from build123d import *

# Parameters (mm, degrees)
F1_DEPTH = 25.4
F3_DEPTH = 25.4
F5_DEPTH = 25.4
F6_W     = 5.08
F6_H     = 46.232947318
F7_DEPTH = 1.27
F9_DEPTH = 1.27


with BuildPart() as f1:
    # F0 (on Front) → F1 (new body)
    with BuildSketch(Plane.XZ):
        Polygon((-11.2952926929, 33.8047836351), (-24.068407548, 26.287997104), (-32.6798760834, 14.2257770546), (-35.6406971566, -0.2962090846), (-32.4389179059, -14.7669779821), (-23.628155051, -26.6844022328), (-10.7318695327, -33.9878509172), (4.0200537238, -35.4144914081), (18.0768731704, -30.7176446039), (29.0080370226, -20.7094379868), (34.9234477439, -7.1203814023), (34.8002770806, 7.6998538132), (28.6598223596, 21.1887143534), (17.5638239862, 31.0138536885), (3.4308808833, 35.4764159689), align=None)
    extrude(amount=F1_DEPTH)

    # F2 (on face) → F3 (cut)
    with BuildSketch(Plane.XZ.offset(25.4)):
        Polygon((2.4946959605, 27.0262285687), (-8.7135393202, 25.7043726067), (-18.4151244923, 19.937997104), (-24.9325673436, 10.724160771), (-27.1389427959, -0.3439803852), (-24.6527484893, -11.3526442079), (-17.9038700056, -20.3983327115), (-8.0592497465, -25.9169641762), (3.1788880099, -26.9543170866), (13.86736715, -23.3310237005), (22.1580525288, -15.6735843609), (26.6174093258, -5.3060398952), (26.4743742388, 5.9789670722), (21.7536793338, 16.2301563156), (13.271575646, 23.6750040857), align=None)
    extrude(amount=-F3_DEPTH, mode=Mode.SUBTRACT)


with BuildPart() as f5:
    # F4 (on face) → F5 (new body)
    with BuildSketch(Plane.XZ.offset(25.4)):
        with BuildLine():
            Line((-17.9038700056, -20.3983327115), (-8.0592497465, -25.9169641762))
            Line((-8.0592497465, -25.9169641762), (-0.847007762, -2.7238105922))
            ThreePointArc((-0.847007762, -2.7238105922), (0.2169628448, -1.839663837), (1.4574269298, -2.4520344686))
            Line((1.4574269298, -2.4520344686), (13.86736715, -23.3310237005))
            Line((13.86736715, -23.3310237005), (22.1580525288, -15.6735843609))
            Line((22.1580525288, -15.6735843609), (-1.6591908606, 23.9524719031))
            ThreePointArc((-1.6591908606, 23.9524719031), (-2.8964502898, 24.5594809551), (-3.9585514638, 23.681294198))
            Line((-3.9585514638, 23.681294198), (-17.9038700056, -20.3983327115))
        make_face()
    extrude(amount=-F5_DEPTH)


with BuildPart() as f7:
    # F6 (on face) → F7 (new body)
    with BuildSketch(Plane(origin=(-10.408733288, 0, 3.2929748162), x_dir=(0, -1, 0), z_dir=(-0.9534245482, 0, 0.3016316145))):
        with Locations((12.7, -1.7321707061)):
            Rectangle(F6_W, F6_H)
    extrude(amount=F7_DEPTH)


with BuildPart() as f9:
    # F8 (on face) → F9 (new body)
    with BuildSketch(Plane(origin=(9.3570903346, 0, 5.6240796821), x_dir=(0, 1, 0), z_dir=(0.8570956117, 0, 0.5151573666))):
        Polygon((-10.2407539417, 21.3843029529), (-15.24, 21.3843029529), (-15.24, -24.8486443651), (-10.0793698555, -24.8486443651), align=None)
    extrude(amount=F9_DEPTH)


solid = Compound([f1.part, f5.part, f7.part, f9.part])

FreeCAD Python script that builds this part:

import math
import FreeCAD as App
import Part
import Sketcher
Q = App.Units.Quantity

doc = App.newDocument("Part")
params = doc.addObject("Spreadsheet::Sheet", "Params")
for row, (alias, value) in enumerate([
    ("pad1_length", "1 in"),
    ("pocket1_length", "1 in"),
    ("sketch3_radius", "0.05 in"),
    ("sketch3_radius2", "0.05 in"),
    ("pad2_length", "1 in"),
    ("sketch4_width", "0.2 in"),
    ("pad3_length", "0.05 in"),
    ("pad4_length", "0.05 in"),
], start=1):
    params.set(f"A{row}", alias)
    params.set(f"B{row}", "=" + value)
    params.setAlias(f"B{row}", alias)

body = doc.addObject("PartDesign::Body", "Body")

sketch1 = body.newObject("Sketcher::SketchObject", "Sketch")
sketch1.AttachmentSupport = (doc.getObject("XZ_Plane"), [""])
sketch1.MapMode = "FlatFace"
sketch1.addGeometry([
    Part.LineSegment(App.Vector(-11.295293, 33.804784, 0), App.Vector(-24.068408, 26.287997, 0)),
    Part.LineSegment(App.Vector(-24.068408, 26.287997, 0), App.Vector(-32.679876, 14.225777, 0)),
    Part.LineSegment(App.Vector(-32.679876, 14.225777, 0), App.Vector(-35.640697, -0.296209, 0)),
    Part.LineSegment(App.Vector(-35.640697, -0.296209, 0), App.Vector(-32.438918, -14.766978, 0)),
    Part.LineSegment(App.Vector(-32.438918, -14.766978, 0), App.Vector(-23.628155, -26.684402, 0)),
    Part.LineSegment(App.Vector(-23.628155, -26.684402, 0), App.Vector(-10.73187, -33.987851, 0)),
    Part.LineSegment(App.Vector(-10.73187, -33.987851, 0), App.Vector(4.020054, -35.414491, 0)),
    Part.LineSegment(App.Vector(4.020054, -35.414491, 0), App.Vector(18.076873, -30.717645, 0)),
    Part.LineSegment(App.Vector(18.076873, -30.717645, 0), App.Vector(29.008037, -20.709438, 0)),
    Part.LineSegment(App.Vector(29.008037, -20.709438, 0), App.Vector(34.923448, -7.120381, 0)),
    Part.LineSegment(App.Vector(34.923448, -7.120381, 0), App.Vector(34.800277, 7.699854, 0)),
    Part.LineSegment(App.Vector(34.800277, 7.699854, 0), App.Vector(28.659822, 21.188714, 0)),
    Part.LineSegment(App.Vector(28.659822, 21.188714, 0), App.Vector(17.563824, 31.013854, 0)),
    Part.LineSegment(App.Vector(17.563824, 31.013854, 0), App.Vector(3.430881, 35.476416, 0)),
    Part.LineSegment(App.Vector(3.430881, 35.476416, 0), App.Vector(-11.295293, 33.804784, 0)),
], False)
sketch1.addConstraint([
    Sketcher.Constraint("Coincident", 0, 2, 1, 1),
    Sketcher.Constraint("Coincident", 1, 2, 2, 1),
    Sketcher.Constraint("Coincident", 2, 2, 3, 1),
    Sketcher.Constraint("Coincident", 3, 2, 4, 1),
    Sketcher.Constraint("Coincident", 4, 2, 5, 1),
    Sketcher.Constraint("Coincident", 5, 2, 6, 1),
    Sketcher.Constraint("Coincident", 6, 2, 7, 1),
    Sketcher.Constraint("Coincident", 7, 2, 8, 1),
    Sketcher.Constraint("Coincident", 8, 2, 9, 1),
    Sketcher.Constraint("Coincident", 9, 2, 10, 1),
    Sketcher.Constraint("Coincident", 10, 2, 11, 1),
    Sketcher.Constraint("Coincident", 11, 2, 12, 1),
    Sketcher.Constraint("Coincident", 12, 2, 13, 1),
    Sketcher.Constraint("Coincident", 13, 2, 14, 1),
    Sketcher.Constraint("Coincident", 14, 2, 0, 1),
    Sketcher.Constraint("Equal", 0, 1),
    Sketcher.Constraint("Equal", 1, 2),
    Sketcher.Constraint("Equal", 2, 3),
    Sketcher.Constraint("Equal", 3, 4),
    Sketcher.Constraint("Equal", 4, 5),
    Sketcher.Constraint("Equal", 5, 6),
    Sketcher.Constraint("Equal", 6, 7),
    Sketcher.Constraint("Equal", 7, 8),
    Sketcher.Constraint("Equal", 8, 9),
    Sketcher.Constraint("Equal", 9, 10),
    Sketcher.Constraint("Equal", 10, 11),
    Sketcher.Constraint("Equal", 11, 12),
    Sketcher.Constraint("Equal", 12, 13),
    Sketcher.Constraint("Equal", 13, 14),
    Sketcher.Constraint("DistanceY", 7, 2, 10, 2, Q("1.5124999 in")),
    Sketcher.Constraint("DistanceY", 4, 2, 0, 2, 52.972399),
    Sketcher.Constraint("DistanceX", 12, 2, 11, 2, 11.095998),
    Sketcher.Constraint("DistanceY", 10, 2, 12, 2, 23.314),
    Sketcher.Constraint("DistanceX", 1, 2, 12, 2, 50.2437),
    Sketcher.Constraint("DistanceY", 11, 2, 13, 2, 14.287702),
    Sketcher.Constraint("DistanceY", 2, 2, -1, 1, 0.296209),
    Sketcher.Constraint("DistanceX", 5, 2, -1, 1, 10.73187),
    Sketcher.Constraint("DistanceY", 5, 2, -1, 1, 33.987851),
    Sketcher.Constraint("DistanceY", 6, 2, -1, 1, 35.414491),
    Sketcher.Constraint("DistanceY", 9, 2, -1, 1, 7.120381),
    Sketcher.Constraint("DistanceX", -1, 1, 13, 2, 3.430881),
    Sketcher.Constraint("DistanceX", 1, 2, 0, 2, 8.611469),
    Sketcher.Constraint("DistanceY", 1, 2, 0, 2, 12.06222),
    Sketcher.Constraint("DistanceX", 2, 2, 1, 2, 2.960821),
    Sketcher.Constraint("DistanceY", 8, 2, 3, 2, 5.94246),
])
pad1 = body.newObject("PartDesign::Pad", "Pad")
pad1.Profile = sketch1
pad1.setExpression("Length", "Params.pad1_length")

sketch2 = body.newObject("Sketcher::SketchObject", "Sketch001")
sketch2.AttachmentSupport = (doc.getObject("XZ_Plane"), [""])
sketch2.MapMode = "FlatFace"
sketch2.AttachmentOffset = App.Placement(App.Vector(0, 0, 1 * 25.4), App.Rotation())
sketch2.addGeometry([
    Part.LineSegment(App.Vector(2.494696, 27.026229, 0), App.Vector(-8.713539, 25.704373, 0)),
    Part.LineSegment(App.Vector(-8.713539, 25.704373, 0), App.Vector(-18.415124, 19.937997, 0)),
    Part.LineSegment(App.Vector(-18.415124, 19.937997, 0), App.Vector(-24.932567, 10.724161, 0)),
    Part.LineSegment(App.Vector(-24.932567, 10.724161, 0), App.Vector(-27.138943, -0.34398, 0)),
    Part.LineSegment(App.Vector(-27.138943, -0.34398, 0), App.Vector(-24.652748, -11.352644, 0)),
    Part.LineSegment(App.Vector(-24.652748, -11.352644, 0), App.Vector(-17.90387, -20.398333, 0)),
    Part.LineSegment(App.Vector(-17.90387, -20.398333, 0), App.Vector(-8.05925, -25.916964, 0)),
    Part.LineSegment(App.Vector(-8.05925, -25.916964, 0), App.Vector(3.178888, -26.954317, 0)),
    Part.LineSegment(App.Vector(3.178888, -26.954317, 0), App.Vector(13.867367, -23.331024, 0)),
    Part.LineSegment(App.Vector(13.867367, -23.331024, 0), App.Vector(22.158053, -15.673584, 0)),
    Part.LineSegment(App.Vector(22.158053, -15.673584, 0), App.Vector(26.617409, -5.30604, 0)),
    Part.LineSegment(App.Vector(26.617409, -5.30604, 0), App.Vector(26.474374, 5.978967, 0)),
    Part.LineSegment(App.Vector(26.474374, 5.978967, 0), App.Vector(21.753679, 16.230156, 0)),
    Part.LineSegment(App.Vector(21.753679, 16.230156, 0), App.Vector(13.271576, 23.675004, 0)),
    Part.LineSegment(App.Vector(13.271576, 23.675004, 0), App.Vector(2.494696, 27.026229, 0)),
], False)
sketch2.addConstraint([
    Sketcher.Constraint("Coincident", 0, 2, 1, 1),
    Sketcher.Constraint("Coincident", 1, 2, 2, 1),
    Sketcher.Constraint("Coincident", 2, 2, 3, 1),
    Sketcher.Constraint("Coincident", 3, 2, 4, 1),
    Sketcher.Constraint("Coincident", 4, 2, 5, 1),
    Sketcher.Constraint("Coincident", 5, 2, 6, 1),
    Sketcher.Constraint("Coincident", 6, 2, 7, 1),
    Sketcher.Constraint("Coincident", 7, 2, 8, 1),
    Sketcher.Constraint("Coincident", 8, 2, 9, 1),
    Sketcher.Constraint("Coincident", 9, 2, 10, 1),
    Sketcher.Constraint("Coincident", 10, 2, 11, 1),
    Sketcher.Constraint("Coincident", 11, 2, 12, 1),
    Sketcher.Constraint("Coincident", 12, 2, 13, 1),
    Sketcher.Constraint("Coincident", 13, 2, 14, 1),
    Sketcher.Constraint("Coincident", 14, 2, 0, 1),
    Sketcher.Constraint("Equal", 0, 1),
    Sketcher.Constraint("Equal", 1, 2),
    Sketcher.Constraint("Equal", 2, 3),
    Sketcher.Constraint("Equal", 3, 4),
    Sketcher.Constraint("Equal", 4, 5),
    Sketcher.Constraint("Equal", 5, 6),
    Sketcher.Constraint("Equal", 6, 7),
    Sketcher.Constraint("Equal", 7, 8),
    Sketcher.Constraint("Equal", 8, 9),
    Sketcher.Constraint("Equal", 9, 10),
    Sketcher.Constraint("Equal", 10, 11),
    Sketcher.Constraint("Equal", 11, 12),
    Sketcher.Constraint("Equal", 12, 13),
    Sketcher.Constraint("Equal", 13, 14),
    Sketcher.Constraint("DistanceX", 4, 2, 6, 2, 16.593499),
    Sketcher.Constraint("DistanceX", 4, 2, 9, 2, 46.810801),
    Sketcher.Constraint("DistanceX", 13, 2, 11, 2, 13.202799),
    Sketcher.Constraint("DistanceX", 1, 2, 13, 2, 31.6867),
    Sketcher.Constraint("DistanceX", 0, 2, -1, 1, 8.713539),
    Sketcher.Constraint("DistanceY", -1, 1, 2, 2, 10.724161),
    Sketcher.Constraint("DistanceY", 3, 2, -1, 1, 0.34398),
    Sketcher.Constraint("DistanceX", 4, 2, -1, 1, 24.652748),
    Sketcher.Constraint("DistanceX", 5, 2, -1, 1, 17.90387),
    Sketcher.Constraint("DistanceX", -1, 1, 7, 2, 3.178888),
    Sketcher.Constraint("DistanceX", -1, 1, 10, 2, 26.617409),
    Sketcher.Constraint("DistanceY", 10, 2, -1, 1, 5.30604),
    Sketcher.Constraint("DistanceX", -1, 1, 12, 2, 21.753679),
    Sketcher.Constraint("DistanceY", -1, 1, 14, 2, 27.026229),
    Sketcher.Constraint("DistanceX", 2, 2, 0, 2, 16.219028),
    Sketcher.Constraint("DistanceY", 2, 2, 0, 2, 14.980212),
])
pocket1 = body.newObject("PartDesign::Pocket", "Pocket")
pocket1.Profile = sketch2
pocket1.setExpression("Length", "Params.pocket1_length")
body2 = doc.addObject("PartDesign::Body", "Body001")

sketch3 = body2.newObject("Sketcher::SketchObject", "Sketch002")
sketch3.AttachmentSupport = (doc.getObject("XZ_Plane001"), [""])
sketch3.MapMode = "FlatFace"
sketch3.AttachmentOffset = App.Placement(App.Vector(0, 0, 1 * 25.4), App.Rotation())
sketch3.addGeometry([
    Part.LineSegment(App.Vector(-17.90387, -20.398333, 0), App.Vector(-8.05925, -25.916964, 0)),
    Part.LineSegment(App.Vector(-8.05925, -25.916964, 0), App.Vector(-0.847008, -2.723811, 0)),
    Part.ArcOfCircle(Part.Circle(App.Vector(0.365711, -3.100923, 0), App.Vector(0, 0, 1), 1.27), math.radians(30.726173), math.radians(162.726173)),
    Part.LineSegment(App.Vector(1.457427, -2.452034, 0), App.Vector(13.867367, -23.331024, 0)),
    Part.LineSegment(App.Vector(13.867367, -23.331024, 0), App.Vector(22.158053, -15.673584, 0)),
    Part.LineSegment(App.Vector(22.158053, -15.673584, 0), App.Vector(-1.659191, 23.952472, 0)),
    Part.ArcOfCircle(Part.Circle(App.Vector(-2.747702, 23.298222, 0), App.Vector(0, 0, 1), 1.27), math.radians(31.007974), math.radians(162.444372)),
    Part.LineSegment(App.Vector(-3.958551, 23.681294, 0), App.Vector(-17.90387, -20.398333, 0)),
], False)
sketch3.addConstraint([
    Sketcher.Constraint("Coincident", 0, 2, 1, 1),
    Sketcher.Constraint("Coincident", 1, 2, 2, 2),
    Sketcher.Constraint("Coincident", 2, 1, 3, 1),
    Sketcher.Constraint("Coincident", 3, 2, 4, 1),
    Sketcher.Constraint("Coincident", 4, 2, 5, 1),
    Sketcher.Constraint("Coincident", 5, 2, 6, 1),
    Sketcher.Constraint("Coincident", 6, 2, 7, 1),
    Sketcher.Constraint("Coincident", 7, 2, 0, 1),
    Sketcher.Constraint("Radius", 2, Q("0.05 in")),
    Sketcher.Constraint("Radius", 6, Q("0.05 in")),
    Sketcher.Constraint("DistanceY", 1, 2, 2, 1, Q("0.0106998 in")),
    Sketcher.Constraint("DistanceY", 3, 2, 2, 3, 20.230101),
    Sketcher.Constraint("DistanceX", 5, 2, 2, 3, 2.024902),
    Sketcher.Constraint("DistanceY", 7, 2, 2, 1, 17.946298),
    Sketcher.Constraint("DistanceX", -1, 1, 2, 3, 0.365711),
    Sketcher.Constraint("DistanceX", 0, 2, -1, 1, 8.05925),
    Sketcher.Constraint("DistanceY", 1, 2, -1, 1, 2.723811),
    Sketcher.Constraint("DistanceY", -1, 1, 5, 2, 23.952472),
    Sketcher.Constraint("DistanceX", 6, 2, -1, 1, 3.958551),
    Sketcher.Constraint("DistanceX", 7, 2, -1, 1, 17.90387),
    Sketcher.Constraint("DistanceY", 0, 2, 2, 3, 22.816041),
    Sketcher.Constraint("DistanceX", 1, 2, 2, 3, 1.212719),
    Sketcher.Constraint("DistanceX", 6, 3, 2, 1, 4.205129),
    Sketcher.Constraint("DistanceX", 2, 1, 3, 2, 12.40994),
    Sketcher.Constraint("DistanceY", 3, 2, 4, 2, 7.657439),
    Sketcher.Constraint("DistanceX", 2, 3, 4, 2, 21.792342),
])
sketch3.setExpression("Constraints[8]", "Params.sketch3_radius")
sketch3.setExpression("Constraints[9]", "Params.sketch3_radius2")
pad2 = body2.newObject("PartDesign::Pad", "Pad001")
pad2.Profile = sketch3
pad2.setExpression("Length", "Params.pad2_length")
pad2.Reversed = True
body3 = doc.addObject("PartDesign::Body", "Body002")

sketch4 = body3.newObject("Sketcher::SketchObject", "Sketch003")
sketch4.Placement = App.Placement(App.Vector(-10.408733, 0, 3.292975), App.Rotation(App.Vector(0, -1, 0), App.Vector(0.301631615, 0, 0.953424548), App.Vector(-0.953424548, 0, 0.301631615), "ZXY"))
sketch4.addGeometry([
    Part.LineSegment(App.Vector(10.16, 21.384303, 0), App.Vector(10.16, -24.848644, 0)),
    Part.LineSegment(App.Vector(10.16, -24.848644, 0), App.Vector(15.24, -24.848644, 0)),
    Part.LineSegment(App.Vector(15.24, -24.848644, 0), App.Vector(15.24, 21.384303, 0)),
    Part.LineSegment(App.Vector(15.24, 21.384303, 0), App.Vector(10.16, 21.384303, 0)),
], False)
sketch4.addConstraint([
    Sketcher.Constraint("Coincident", 0, 2, 1, 1),
    Sketcher.Constraint("Coincident", 1, 2, 2, 1),
    Sketcher.Constraint("Coincident", 2, 2, 3, 1),
    Sketcher.Constraint("Coincident", 3, 2, 0, 1),
    Sketcher.Constraint("Vertical", 0),
    Sketcher.Constraint("Horizontal", 1),
    Sketcher.Constraint("Vertical", 2),
    Sketcher.Constraint("Horizontal", 3),
    Sketcher.Constraint("DistanceX", 1, 1, 1, 2, Q("0.2 in")),
    Sketcher.Constraint("DistanceX", -1, 1, 0, 2, Q("0.4 in")),
    Sketcher.Constraint("DistanceY", 0, 2, 0, 1, 46.232947),
    Sketcher.Constraint("DistanceY", 0, 2, -1, 1, 24.848644),
])
sketch4.setExpression("Constraints[8]", "Params.sketch4_width")
pad3 = body3.newObject("PartDesign::Pad", "Pad002")
pad3.Profile = sketch4
pad3.setExpression("Length", "Params.pad3_length")
body4 = doc.addObject("PartDesign::Body", "Body003")

sketch5 = body4.newObject("Sketcher::SketchObject", "Sketch004")
sketch5.Placement = App.Placement(App.Vector(9.35709, 0, 5.62408), App.Rotation(App.Vector(0, 1, 0), App.Vector(-0.515157367, 0, 0.857095612), App.Vector(0.857095612, 0, 0.515157367), "ZXY"))
sketch5.addGeometry([
    Part.LineSegment(App.Vector(-10.240754, 21.384303, 0), App.Vector(-15.24, 21.384303, 0)),
    Part.LineSegment(App.Vector(-15.24, 21.384303, 0), App.Vector(-15.24, -24.848644, 0)),
    Part.LineSegment(App.Vector(-15.24, -24.848644, 0), App.Vector(-10.07937, -24.848644, 0)),
    Part.LineSegment(App.Vector(-10.07937, -24.848644, 0), App.Vector(-10.240754, 21.384303, 0)),
], False)
sketch5.addConstraint([
    Sketcher.Constraint("Coincident", 0, 2, 1, 1),
    Sketcher.Constraint("Coincident", 1, 2, 2, 1),
    Sketcher.Constraint("Coincident", 2, 2, 3, 1),
    Sketcher.Constraint("Coincident", 3, 2, 0, 1),
    Sketcher.Constraint("Horizontal", 0),
    Sketcher.Constraint("Vertical", 1),
    Sketcher.Constraint("Horizontal", 2),
    Sketcher.Constraint("DistanceX", 0, 2, -1, 1, Q("0.6 in")),
    Sketcher.Constraint("Angle", 3, Q("90.2 deg")),
    Sketcher.Constraint("DistanceX", 2, 1, 2, 2, 5.16063),
    Sketcher.Constraint("Distance", 3, 46.233229),
    Sketcher.Constraint("DistanceY", -1, 1, 0, 2, 21.384303),
])
pad4 = body4.newObject("PartDesign::Pad", "Pad003")
pad4.Profile = sketch5
pad4.setExpression("Length", "Params.pad4_length")

doc.recompute()
